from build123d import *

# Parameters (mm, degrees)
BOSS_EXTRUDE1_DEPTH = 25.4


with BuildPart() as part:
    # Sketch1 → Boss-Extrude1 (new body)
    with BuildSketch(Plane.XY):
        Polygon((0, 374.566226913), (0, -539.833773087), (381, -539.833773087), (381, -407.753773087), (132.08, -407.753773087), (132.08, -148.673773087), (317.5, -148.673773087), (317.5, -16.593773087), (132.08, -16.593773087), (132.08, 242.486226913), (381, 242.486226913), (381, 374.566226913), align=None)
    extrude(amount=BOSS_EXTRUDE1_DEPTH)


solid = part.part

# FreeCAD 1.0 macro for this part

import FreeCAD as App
import Part
import Sketcher
Q = App.Units.Quantity

doc = App.newDocument("Part")
params = doc.addObject("Spreadsheet::Sheet", "Params")
for row, (alias, value) in enumerate([
    ("sketch1_width", "15 in"),
    ("sketch1_height", "36 in"),
    ("sketch1_width2", "9.8 in"),
    ("sketch1_width3", "7.3 in"),
    ("sketch1_height2", "5.2 in"),
    ("pad1_length", "1 in"),
], start=1):
    params.set(f"A{row}", alias)
    params.set(f"B{row}", "=" + value)
    params.setAlias(f"B{row}", alias)

body = doc.addObject("PartDesign::Body", "Body")

# Sketch on XY plane
sketch1 = body.newObject("Sketcher::SketchObject", "Sketch")
sketch1.AttachmentSupport = (doc.getObject("XY_Plane"), [""])
sketch1.MapMode = "FlatFace"
sketch1.addGeometry([
    Part.LineSegment(App.Vector(0, 375, 0), App.Vector(0, -540, 0)),  # 0
    Part.LineSegment(App.Vector(0, -540, 0), App.Vector(381, -540, 0)),  # 1
    Part.LineSegment(App.Vector(381, -540, 0), App.Vector(381, -408, 0)),  # 2
    Part.LineSegment(App.Vector(381, -408, 0), App.Vector(132, -408, 0)),  # 3
    Part.LineSegment(App.Vector(132, -408, 0), App.Vector(132, -149, 0)),  # 4
    Part.LineSegment(App.Vector(132, -149, 0), App.Vector(318, -149, 0)),  # 5
    Part.LineSegment(App.Vector(318, -149, 0), App.Vector(318, -17, 0)),  # 6
    Part.LineSegment(App.Vector(318, -17, 0), App.Vector(132, -17, 0)),  # 7
    Part.LineSegment(App.Vector(132, -17, 0), App.Vector(132, 242, 0)),  # 8
    Part.LineSegment(App.Vector(132, 242, 0), App.Vector(381, 242, 0)),  # 9
    Part.LineSegment(App.Vector(381, 242, 0), App.Vector(381, 375, 0)),  # 10
    Part.LineSegment(App.Vector(381, 375, 0), App.Vector(0, 375, 0)),  # 11
], False)
sketch1.addConstraint([
    Sketcher.Constraint("Coincident", 0, 2, 1, 1),
    Sketcher.Constraint("Coincident", 1, 2, 2, 1),
    Sketcher.Constraint("Coincident", 2, 2, 3, 1),
    Sketcher.Constraint("Coincident", 3, 2, 4, 1),
    Sketcher.Constraint("Coincident", 4, 2, 5, 1),
    Sketcher.Constraint("Coincident", 5, 2, 6, 1),
    Sketcher.Constraint("Coincident", 6, 2, 7, 1),
    Sketcher.Constraint("Coincident", 7, 2, 8, 1),
    Sketcher.Constraint("Coincident", 8, 2, 9, 1),
    Sketcher.Constraint("Coincident", 9, 2, 10, 1),
    Sketcher.Constraint("Coincident", 10, 2, 11, 1),
    Sketcher.Constraint("Coincident", 11, 2, 0, 1),
    Sketcher.Constraint("Vertical", 0),
    Sketcher.Constraint("Horizontal", 1),
    Sketcher.Constraint("Vertical", 2),
    Sketcher.Constraint("Horizontal", 3),
    Sketcher.Constraint("Vertical", 4),
    Sketcher.Constraint("Horizontal", 5),
    Sketcher.Constraint("Vertical", 6),
    Sketcher.Constraint("Horizontal", 7),
    Sketcher.Constraint("Vertical", 8),
    Sketcher.Constraint("Horizontal", 9),
    Sketcher.Constraint("Vertical", 10),
    Sketcher.Constraint("Horizontal", 11),
    Sketcher.Constraint("PointOnObject", 0, 2, -2),
    Sketcher.Constraint("Vertical", 4, 2, 7, 2),
    Sketcher.Constraint("Vertical", 2, 2, 9, 2),
    Sketcher.Constraint("Equal", 2, 6),
    Sketcher.Constraint("Equal", 4, 8),
    Sketcher.Constraint("Equal", 6, 10),
    Sketcher.Constraint("DistanceX", 1, 1, 1, 2, Q("15 in")),
    Sketcher.Constraint("DistanceY", 0, 2, 0, 1, Q("36 in")),
    Sketcher.Constraint("DistanceX", 3, 2, 3, 1, Q("9.8 in")),
    Sketcher.Constraint("DistanceX", 5, 1, 5, 2, Q("7.3 in")),
    Sketcher.Constraint("DistanceY", 2, 1, 2, 2, Q("5.2 in")),
    Sketcher.Constraint("DistanceY", 0, 2, -1, 1, Q("539.833773 mm")),
])
sketch1.setExpression("Constraints[30]", "Params.sketch1_width")
sketch1.setExpression("Constraints[31]", "Params.sketch1_height")
sketch1.setExpression("Constraints[32]", "Params.sketch1_width2")
sketch1.setExpression("Constraints[33]", "Params.sketch1_width3")
sketch1.setExpression("Constraints[34]", "Params.sketch1_height2")
pad1 = body.newObject("PartDesign::Pad", "Pad")
pad1.Profile = sketch1
pad1.setExpression("Length", "Params.pad1_length")

doc.recompute()
